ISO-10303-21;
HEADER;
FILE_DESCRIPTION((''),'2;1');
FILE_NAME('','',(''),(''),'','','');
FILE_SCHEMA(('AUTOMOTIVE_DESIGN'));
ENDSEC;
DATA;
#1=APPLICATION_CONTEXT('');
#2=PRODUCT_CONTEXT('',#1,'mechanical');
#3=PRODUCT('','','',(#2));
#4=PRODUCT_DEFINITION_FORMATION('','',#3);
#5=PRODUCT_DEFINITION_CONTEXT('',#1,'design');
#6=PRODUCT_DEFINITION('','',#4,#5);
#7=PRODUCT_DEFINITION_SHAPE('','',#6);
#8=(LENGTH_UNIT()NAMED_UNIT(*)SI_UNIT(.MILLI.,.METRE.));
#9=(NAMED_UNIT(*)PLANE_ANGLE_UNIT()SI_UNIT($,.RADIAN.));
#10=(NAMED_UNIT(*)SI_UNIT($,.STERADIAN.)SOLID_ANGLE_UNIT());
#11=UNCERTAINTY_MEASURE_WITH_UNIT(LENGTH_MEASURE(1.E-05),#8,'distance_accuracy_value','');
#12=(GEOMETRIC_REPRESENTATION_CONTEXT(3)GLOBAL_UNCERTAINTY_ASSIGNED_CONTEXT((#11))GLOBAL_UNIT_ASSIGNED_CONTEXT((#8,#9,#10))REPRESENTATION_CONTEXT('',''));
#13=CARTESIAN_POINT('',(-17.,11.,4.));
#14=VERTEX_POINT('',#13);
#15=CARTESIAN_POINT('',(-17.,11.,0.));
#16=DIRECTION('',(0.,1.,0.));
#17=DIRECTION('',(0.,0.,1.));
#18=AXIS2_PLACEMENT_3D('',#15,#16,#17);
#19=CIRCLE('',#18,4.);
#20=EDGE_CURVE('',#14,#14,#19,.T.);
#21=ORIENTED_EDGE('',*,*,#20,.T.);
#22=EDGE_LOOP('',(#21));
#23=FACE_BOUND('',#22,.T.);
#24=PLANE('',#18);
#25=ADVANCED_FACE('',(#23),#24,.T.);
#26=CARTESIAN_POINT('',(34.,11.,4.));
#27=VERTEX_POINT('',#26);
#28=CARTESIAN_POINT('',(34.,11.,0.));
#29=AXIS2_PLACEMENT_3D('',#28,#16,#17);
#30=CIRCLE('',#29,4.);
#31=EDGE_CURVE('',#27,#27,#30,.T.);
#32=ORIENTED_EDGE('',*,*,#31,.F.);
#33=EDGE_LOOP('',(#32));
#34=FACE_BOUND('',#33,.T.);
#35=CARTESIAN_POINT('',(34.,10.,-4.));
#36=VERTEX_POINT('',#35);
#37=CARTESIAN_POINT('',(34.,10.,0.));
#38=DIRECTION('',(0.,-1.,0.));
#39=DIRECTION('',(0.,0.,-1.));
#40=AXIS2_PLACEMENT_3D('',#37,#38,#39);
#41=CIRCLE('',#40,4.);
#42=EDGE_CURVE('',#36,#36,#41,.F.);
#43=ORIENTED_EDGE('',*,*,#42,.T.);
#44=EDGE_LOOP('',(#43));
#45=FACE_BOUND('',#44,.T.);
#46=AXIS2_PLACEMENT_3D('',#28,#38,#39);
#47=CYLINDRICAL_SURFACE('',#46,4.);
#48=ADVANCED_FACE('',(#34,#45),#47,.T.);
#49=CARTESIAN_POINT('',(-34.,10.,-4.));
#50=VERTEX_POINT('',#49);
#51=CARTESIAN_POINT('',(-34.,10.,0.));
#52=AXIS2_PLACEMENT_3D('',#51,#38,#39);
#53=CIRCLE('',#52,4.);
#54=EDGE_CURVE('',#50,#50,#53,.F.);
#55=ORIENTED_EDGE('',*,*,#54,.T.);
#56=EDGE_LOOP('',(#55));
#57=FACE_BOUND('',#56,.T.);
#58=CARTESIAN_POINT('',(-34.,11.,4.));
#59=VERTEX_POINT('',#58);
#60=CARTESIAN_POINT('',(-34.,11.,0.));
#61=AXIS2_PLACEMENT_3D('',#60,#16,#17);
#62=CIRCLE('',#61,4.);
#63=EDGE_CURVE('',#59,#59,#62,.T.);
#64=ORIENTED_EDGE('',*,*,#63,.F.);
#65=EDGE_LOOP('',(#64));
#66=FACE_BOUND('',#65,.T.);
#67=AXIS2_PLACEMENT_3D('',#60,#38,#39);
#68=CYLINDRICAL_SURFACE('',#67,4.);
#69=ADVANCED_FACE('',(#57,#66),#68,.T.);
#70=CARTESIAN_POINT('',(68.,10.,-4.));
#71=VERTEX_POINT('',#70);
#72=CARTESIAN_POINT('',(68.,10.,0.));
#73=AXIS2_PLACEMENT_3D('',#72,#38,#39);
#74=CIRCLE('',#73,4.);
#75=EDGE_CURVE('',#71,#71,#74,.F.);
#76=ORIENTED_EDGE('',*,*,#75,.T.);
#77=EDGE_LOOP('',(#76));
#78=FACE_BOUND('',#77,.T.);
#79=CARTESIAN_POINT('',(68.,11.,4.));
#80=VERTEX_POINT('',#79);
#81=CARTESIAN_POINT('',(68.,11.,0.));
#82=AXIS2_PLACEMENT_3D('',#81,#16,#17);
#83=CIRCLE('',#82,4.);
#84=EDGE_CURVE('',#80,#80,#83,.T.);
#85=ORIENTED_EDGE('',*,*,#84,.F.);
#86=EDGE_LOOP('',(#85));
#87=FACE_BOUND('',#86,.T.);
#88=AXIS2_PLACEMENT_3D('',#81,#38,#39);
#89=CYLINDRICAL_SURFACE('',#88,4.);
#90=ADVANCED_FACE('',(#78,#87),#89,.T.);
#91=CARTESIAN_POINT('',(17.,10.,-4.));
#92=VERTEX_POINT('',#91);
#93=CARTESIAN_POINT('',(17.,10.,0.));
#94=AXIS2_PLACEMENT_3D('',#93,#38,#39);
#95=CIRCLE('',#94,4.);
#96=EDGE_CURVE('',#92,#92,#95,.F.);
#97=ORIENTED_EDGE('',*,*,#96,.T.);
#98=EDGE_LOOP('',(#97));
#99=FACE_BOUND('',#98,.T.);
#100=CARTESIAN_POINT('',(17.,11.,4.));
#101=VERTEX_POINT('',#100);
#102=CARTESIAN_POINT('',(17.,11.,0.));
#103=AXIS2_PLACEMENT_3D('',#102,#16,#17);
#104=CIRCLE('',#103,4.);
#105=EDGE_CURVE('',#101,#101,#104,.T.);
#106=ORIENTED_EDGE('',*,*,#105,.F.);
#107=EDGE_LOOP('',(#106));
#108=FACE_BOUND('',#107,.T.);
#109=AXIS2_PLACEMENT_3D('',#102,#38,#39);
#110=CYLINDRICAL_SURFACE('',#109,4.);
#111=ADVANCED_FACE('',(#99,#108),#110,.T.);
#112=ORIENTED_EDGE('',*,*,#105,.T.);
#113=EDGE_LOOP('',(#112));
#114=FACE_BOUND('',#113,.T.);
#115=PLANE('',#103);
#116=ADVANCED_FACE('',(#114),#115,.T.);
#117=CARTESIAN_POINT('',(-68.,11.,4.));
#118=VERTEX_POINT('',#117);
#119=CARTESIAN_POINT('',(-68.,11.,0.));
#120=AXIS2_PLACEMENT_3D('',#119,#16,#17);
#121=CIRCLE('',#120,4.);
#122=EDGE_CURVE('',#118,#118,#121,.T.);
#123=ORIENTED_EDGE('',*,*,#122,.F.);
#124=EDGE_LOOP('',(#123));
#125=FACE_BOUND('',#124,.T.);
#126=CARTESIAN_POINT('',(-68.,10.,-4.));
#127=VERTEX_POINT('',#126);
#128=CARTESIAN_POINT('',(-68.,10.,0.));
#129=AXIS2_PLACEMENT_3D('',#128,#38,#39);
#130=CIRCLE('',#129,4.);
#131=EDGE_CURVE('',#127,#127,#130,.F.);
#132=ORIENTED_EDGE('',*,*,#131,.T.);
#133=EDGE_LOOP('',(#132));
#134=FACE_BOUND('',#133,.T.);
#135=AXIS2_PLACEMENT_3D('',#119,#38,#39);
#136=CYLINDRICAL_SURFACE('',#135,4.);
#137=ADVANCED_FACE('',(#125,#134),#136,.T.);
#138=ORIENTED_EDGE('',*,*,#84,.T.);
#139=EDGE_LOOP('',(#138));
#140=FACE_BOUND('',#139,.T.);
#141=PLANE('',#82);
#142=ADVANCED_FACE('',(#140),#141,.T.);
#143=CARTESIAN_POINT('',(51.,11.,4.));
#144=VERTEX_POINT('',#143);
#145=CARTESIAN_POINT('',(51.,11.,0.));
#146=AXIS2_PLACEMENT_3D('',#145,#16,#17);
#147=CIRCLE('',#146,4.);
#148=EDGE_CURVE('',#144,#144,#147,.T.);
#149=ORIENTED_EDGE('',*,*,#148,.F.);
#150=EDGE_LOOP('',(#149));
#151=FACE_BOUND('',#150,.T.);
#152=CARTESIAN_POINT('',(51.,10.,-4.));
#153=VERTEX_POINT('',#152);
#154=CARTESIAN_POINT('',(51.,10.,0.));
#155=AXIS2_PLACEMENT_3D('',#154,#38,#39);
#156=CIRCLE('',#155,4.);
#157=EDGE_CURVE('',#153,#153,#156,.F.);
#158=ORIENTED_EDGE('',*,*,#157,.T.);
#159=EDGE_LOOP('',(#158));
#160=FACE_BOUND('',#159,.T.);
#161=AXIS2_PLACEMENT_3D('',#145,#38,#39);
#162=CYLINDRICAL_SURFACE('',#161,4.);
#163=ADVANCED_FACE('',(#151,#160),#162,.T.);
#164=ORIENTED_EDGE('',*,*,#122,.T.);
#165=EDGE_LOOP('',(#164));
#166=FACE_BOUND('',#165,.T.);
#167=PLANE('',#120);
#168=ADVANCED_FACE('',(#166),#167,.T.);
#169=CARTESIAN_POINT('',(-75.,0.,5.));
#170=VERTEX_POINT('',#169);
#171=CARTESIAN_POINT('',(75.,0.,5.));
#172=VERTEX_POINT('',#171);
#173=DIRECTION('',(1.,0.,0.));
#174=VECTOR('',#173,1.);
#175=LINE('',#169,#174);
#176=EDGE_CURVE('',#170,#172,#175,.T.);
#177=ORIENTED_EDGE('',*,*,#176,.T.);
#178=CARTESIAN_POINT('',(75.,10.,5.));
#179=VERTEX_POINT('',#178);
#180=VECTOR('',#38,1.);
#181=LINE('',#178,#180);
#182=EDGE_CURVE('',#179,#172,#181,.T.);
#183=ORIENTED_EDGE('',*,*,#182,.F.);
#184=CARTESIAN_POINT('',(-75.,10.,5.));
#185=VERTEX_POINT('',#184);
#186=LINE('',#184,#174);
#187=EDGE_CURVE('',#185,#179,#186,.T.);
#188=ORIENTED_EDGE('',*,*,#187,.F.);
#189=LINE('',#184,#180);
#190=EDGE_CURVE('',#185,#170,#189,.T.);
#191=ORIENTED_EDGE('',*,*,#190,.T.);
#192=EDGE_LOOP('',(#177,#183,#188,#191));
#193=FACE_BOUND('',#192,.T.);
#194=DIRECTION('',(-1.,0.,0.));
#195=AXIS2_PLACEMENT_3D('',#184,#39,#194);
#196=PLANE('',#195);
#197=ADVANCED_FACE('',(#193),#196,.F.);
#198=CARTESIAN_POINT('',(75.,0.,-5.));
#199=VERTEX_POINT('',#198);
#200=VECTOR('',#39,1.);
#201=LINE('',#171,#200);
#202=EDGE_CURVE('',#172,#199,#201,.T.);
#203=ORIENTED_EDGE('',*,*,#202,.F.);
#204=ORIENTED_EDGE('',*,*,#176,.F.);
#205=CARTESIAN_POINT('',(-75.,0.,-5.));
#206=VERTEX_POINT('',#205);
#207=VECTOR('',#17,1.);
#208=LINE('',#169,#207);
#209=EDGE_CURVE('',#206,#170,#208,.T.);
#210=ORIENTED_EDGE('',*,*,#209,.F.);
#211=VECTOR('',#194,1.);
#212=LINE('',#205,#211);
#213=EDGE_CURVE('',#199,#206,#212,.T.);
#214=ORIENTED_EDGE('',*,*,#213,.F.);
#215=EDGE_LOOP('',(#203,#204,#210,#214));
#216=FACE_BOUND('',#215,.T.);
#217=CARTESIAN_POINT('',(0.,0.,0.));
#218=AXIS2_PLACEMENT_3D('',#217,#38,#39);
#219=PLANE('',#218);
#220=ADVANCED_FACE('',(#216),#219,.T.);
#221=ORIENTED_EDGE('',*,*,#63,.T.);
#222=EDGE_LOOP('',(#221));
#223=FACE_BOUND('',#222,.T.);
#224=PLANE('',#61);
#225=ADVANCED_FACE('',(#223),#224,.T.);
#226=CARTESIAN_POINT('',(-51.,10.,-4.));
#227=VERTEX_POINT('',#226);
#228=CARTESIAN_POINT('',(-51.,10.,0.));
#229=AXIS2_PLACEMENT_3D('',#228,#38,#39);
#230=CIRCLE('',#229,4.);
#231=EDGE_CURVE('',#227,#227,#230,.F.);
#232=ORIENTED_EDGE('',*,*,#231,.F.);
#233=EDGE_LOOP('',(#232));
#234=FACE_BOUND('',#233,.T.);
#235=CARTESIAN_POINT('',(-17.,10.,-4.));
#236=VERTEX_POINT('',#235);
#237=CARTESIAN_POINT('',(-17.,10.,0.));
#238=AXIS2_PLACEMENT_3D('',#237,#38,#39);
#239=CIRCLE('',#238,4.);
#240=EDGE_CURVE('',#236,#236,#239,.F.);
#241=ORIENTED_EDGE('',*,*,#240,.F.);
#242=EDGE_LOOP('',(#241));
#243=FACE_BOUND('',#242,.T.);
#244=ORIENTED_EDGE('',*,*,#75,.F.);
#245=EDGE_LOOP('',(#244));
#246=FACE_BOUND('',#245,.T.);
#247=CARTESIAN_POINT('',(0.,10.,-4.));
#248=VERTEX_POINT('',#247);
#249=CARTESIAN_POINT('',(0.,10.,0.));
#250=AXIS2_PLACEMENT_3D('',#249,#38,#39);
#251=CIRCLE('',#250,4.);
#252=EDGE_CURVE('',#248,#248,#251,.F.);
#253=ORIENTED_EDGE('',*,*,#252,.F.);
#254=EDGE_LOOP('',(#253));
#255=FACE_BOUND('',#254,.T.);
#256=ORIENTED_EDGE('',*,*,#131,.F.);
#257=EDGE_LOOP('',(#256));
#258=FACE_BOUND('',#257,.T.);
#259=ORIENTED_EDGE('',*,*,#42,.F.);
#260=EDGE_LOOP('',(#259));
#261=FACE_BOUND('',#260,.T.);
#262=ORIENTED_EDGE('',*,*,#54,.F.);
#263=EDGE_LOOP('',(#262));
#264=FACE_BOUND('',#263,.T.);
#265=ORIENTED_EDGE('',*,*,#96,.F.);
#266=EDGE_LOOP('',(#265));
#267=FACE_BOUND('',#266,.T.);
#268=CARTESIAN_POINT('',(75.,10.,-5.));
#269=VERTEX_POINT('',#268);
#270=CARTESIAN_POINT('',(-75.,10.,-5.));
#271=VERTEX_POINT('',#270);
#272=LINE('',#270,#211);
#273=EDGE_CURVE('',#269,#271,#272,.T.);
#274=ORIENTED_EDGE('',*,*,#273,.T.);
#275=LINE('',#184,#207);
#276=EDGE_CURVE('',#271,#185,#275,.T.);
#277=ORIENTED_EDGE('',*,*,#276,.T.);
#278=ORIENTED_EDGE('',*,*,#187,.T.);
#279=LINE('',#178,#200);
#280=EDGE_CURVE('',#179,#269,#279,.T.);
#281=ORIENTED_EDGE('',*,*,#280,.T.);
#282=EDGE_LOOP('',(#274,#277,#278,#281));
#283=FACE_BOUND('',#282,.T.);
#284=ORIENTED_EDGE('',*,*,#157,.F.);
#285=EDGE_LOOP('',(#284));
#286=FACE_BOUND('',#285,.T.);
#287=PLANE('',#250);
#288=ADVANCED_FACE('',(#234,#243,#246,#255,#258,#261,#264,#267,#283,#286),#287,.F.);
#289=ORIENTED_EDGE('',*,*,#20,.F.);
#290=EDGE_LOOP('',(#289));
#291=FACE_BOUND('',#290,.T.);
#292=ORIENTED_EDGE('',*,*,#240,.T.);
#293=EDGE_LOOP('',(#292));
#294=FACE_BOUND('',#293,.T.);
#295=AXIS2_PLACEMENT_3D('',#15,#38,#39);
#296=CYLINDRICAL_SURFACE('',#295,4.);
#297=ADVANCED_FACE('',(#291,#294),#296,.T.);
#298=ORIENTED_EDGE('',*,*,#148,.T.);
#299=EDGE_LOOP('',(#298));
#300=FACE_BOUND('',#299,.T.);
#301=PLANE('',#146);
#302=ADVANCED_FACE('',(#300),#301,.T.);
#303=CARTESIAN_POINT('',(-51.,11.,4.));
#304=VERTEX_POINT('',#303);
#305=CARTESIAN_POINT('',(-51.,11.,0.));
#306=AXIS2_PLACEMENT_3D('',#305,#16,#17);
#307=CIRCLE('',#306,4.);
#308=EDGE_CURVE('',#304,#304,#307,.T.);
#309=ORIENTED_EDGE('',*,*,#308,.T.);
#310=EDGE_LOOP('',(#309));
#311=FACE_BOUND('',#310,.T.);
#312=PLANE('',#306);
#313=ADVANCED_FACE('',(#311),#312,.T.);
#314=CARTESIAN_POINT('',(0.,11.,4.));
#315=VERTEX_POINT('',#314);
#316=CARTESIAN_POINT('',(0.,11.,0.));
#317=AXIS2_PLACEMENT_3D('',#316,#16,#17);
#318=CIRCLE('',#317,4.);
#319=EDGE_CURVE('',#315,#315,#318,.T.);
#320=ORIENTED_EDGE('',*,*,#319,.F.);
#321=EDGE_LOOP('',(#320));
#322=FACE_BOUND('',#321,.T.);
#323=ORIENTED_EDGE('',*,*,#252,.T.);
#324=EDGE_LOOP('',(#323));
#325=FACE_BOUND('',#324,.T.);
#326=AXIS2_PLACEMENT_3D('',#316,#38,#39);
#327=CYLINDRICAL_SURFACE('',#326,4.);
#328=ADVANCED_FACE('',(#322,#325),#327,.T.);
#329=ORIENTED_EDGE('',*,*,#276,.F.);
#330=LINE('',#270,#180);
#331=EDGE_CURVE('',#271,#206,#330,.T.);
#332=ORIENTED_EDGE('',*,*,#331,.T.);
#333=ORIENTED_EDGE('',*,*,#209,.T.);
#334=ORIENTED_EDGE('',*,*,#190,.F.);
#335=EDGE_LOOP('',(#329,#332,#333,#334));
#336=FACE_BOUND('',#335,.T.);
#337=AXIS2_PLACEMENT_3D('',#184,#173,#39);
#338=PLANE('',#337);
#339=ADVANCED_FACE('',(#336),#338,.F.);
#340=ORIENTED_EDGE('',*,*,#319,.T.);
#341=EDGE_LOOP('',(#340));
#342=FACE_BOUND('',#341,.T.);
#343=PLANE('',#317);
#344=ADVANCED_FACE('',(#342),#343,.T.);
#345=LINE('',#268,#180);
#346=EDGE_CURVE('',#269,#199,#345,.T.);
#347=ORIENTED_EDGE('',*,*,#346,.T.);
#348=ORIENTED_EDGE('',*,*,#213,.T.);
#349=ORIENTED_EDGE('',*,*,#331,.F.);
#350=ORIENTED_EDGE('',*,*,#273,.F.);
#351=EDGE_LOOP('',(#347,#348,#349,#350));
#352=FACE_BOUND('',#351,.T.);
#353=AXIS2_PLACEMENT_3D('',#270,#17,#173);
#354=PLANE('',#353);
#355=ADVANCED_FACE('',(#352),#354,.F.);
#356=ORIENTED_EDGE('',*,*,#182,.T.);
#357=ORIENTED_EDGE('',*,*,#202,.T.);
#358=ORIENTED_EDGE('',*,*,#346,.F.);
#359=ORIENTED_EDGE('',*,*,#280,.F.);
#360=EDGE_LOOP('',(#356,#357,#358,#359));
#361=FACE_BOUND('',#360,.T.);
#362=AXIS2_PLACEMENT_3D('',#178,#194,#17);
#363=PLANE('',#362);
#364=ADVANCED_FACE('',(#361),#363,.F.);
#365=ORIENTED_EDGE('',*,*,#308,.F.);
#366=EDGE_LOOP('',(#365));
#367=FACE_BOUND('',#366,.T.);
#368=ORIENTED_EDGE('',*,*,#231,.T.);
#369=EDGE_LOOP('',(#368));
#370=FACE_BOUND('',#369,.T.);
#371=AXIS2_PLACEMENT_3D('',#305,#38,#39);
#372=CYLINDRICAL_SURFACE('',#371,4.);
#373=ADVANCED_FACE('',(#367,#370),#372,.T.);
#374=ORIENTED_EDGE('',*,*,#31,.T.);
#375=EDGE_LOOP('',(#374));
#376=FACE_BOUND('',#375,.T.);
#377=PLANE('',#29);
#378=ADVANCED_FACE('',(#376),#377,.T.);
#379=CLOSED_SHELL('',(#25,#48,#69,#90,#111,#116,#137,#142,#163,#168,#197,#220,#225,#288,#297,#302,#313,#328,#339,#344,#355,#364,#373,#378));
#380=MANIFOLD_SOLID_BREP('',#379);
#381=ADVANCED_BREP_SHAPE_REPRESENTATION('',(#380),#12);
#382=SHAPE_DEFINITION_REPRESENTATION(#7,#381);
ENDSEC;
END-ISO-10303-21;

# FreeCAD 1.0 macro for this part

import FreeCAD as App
import Part
import Sketcher
from FreeCAD import Vector

doc = App.newDocument("Part")
body = doc.addObject("PartDesign::Body", "Body")

# Sketch on XZ plane
sketch1 = doc.addObject("Sketcher::SketchObject", "Sketch")
body.addObject(sketch1)
sketch1.AttachmentSupport = (doc.XZ_Plane, [""])
sketch1.MapMode = "FlatFace"
sketch1.addGeometry([
    Part.LineSegment(Vector(-75, -5, 0), Vector(-75, 5, 0)),
    Part.LineSegment(Vector(-75, 5, 0), Vector(75, 5, 0)),
    Part.LineSegment(Vector(75, 5, 0), Vector(75, -5, 0)),
    Part.LineSegment(Vector(75, -5, 0), Vector(-75, -5, 0)),
], False)
sketch1.addConstraint([
    Sketcher.Constraint("Coincident", 0, 2, 1, 1),
    Sketcher.Constraint("Coincident", 1, 2, 2, 1),
    Sketcher.Constraint("Coincident", 2, 2, 3, 1),
    Sketcher.Constraint("Coincident", 3, 2, 0, 1),
    Sketcher.Constraint("Vertical", 0),
    Sketcher.Constraint("Horizontal", 1),
    Sketcher.Constraint("Vertical", 2),
    Sketcher.Constraint("Horizontal", 3),
    Sketcher.Constraint("Symmetric", 0, 2, 2, 2, -1, 1),
    Sketcher.Constraint("DistanceX", 1, 1, 1, 2, 150.0),
    Sketcher.Constraint("DistanceY", 0, 1, 0, 2, 10.0),
])
pad1 = doc.addObject("PartDesign::Pad", "Pad")
body.addObject(pad1)
pad1.Profile = sketch1
pad1.Length = 10
pad1.Reversed = True

# Sketch on XZ plane
sketch2 = doc.addObject("Sketcher::SketchObject", "Sketch001")
body.addObject(sketch2)
sketch2.AttachmentSupport = (doc.XZ_Plane, [""])
sketch2.MapMode = "FlatFace"
sketch2.AttachmentOffset = App.Placement(Vector(0, 0, -10), App.Rotation())
sketch2.addGeometry([
    Part.Circle(Vector(0, 0, 0), Vector(0, 0, 1), 4),  # 0
    Part.Circle(Vector(17, 0, 0), Vector(0, 0, 1), 4),  # 1
    Part.Circle(Vector(34, 0, 0), Vector(0, 0, 1), 4),  # 2
    Part.Circle(Vector(51, 0, 0), Vector(0, 0, 1), 4),  # 3
    Part.Circle(Vector(68, 0, 0), Vector(0, 0, 1), 4),  # 4
    Part.Circle(Vector(-17, 0, 0), Vector(0, 0, 1), 4),  # 5
    Part.Circle(Vector(-34, 0, 0), Vector(0, 0, 1), 4),  # 6
    Part.Circle(Vector(-51, 0, 0), Vector(0, 0, 1), 4),  # 7
    Part.Circle(Vector(-68, 0, 0), Vector(0, 0, 1), 4),  # 8
], False)
sketch2.addConstraint([
    Sketcher.Constraint("Coincident", 0, 3, -1, 1),
    Sketcher.Constraint("Equal", 0, 1),
    Sketcher.Constraint("Equal", 1, 2),
    Sketcher.Constraint("Equal", 2, 3),
    Sketcher.Constraint("Equal", 3, 4),
    Sketcher.Constraint("Equal", 4, 5),
    Sketcher.Constraint("Equal", 5, 6),
    Sketcher.Constraint("Equal", 6, 7),
    Sketcher.Constraint("Equal", 7, 8),
    Sketcher.Constraint("Symmetric", 1, 3, 5, 3, -1, 1),
    Sketcher.Constraint("Symmetric", 2, 3, 6, 3, -1, 1),
    Sketcher.Constraint("Symmetric", 3, 3, 7, 3, -1, 1),
    Sketcher.Constraint("Symmetric", 4, 3, 8, 3, -1, 1),
    Sketcher.Constraint("PointOnObject", 1, 3, -1),
    Sketcher.Constraint("PointOnObject", 2, 3, -1),
    Sketcher.Constraint("PointOnObject", 3, 3, -1),
    Sketcher.Constraint("PointOnObject", 4, 3, -1),
    Sketcher.Constraint("Diameter", 0, 8.0),
    Sketcher.Constraint("DistanceX", -1, 1, 1, 3, 17.0),
    Sketcher.Constraint("DistanceX", -1, 1, 2, 3, 34.0),
    Sketcher.Constraint("DistanceX", -1, 1, 3, 3, 51.0),
    Sketcher.Constraint("DistanceX", -1, 1, 4, 3, 68.0),
])
pad2 = doc.addObject("PartDesign::Pad", "Pad001")
body.addObject(pad2)
pad2.Profile = sketch2
pad2.Length = 1
pad2.Reversed = True

doc.recompute()
